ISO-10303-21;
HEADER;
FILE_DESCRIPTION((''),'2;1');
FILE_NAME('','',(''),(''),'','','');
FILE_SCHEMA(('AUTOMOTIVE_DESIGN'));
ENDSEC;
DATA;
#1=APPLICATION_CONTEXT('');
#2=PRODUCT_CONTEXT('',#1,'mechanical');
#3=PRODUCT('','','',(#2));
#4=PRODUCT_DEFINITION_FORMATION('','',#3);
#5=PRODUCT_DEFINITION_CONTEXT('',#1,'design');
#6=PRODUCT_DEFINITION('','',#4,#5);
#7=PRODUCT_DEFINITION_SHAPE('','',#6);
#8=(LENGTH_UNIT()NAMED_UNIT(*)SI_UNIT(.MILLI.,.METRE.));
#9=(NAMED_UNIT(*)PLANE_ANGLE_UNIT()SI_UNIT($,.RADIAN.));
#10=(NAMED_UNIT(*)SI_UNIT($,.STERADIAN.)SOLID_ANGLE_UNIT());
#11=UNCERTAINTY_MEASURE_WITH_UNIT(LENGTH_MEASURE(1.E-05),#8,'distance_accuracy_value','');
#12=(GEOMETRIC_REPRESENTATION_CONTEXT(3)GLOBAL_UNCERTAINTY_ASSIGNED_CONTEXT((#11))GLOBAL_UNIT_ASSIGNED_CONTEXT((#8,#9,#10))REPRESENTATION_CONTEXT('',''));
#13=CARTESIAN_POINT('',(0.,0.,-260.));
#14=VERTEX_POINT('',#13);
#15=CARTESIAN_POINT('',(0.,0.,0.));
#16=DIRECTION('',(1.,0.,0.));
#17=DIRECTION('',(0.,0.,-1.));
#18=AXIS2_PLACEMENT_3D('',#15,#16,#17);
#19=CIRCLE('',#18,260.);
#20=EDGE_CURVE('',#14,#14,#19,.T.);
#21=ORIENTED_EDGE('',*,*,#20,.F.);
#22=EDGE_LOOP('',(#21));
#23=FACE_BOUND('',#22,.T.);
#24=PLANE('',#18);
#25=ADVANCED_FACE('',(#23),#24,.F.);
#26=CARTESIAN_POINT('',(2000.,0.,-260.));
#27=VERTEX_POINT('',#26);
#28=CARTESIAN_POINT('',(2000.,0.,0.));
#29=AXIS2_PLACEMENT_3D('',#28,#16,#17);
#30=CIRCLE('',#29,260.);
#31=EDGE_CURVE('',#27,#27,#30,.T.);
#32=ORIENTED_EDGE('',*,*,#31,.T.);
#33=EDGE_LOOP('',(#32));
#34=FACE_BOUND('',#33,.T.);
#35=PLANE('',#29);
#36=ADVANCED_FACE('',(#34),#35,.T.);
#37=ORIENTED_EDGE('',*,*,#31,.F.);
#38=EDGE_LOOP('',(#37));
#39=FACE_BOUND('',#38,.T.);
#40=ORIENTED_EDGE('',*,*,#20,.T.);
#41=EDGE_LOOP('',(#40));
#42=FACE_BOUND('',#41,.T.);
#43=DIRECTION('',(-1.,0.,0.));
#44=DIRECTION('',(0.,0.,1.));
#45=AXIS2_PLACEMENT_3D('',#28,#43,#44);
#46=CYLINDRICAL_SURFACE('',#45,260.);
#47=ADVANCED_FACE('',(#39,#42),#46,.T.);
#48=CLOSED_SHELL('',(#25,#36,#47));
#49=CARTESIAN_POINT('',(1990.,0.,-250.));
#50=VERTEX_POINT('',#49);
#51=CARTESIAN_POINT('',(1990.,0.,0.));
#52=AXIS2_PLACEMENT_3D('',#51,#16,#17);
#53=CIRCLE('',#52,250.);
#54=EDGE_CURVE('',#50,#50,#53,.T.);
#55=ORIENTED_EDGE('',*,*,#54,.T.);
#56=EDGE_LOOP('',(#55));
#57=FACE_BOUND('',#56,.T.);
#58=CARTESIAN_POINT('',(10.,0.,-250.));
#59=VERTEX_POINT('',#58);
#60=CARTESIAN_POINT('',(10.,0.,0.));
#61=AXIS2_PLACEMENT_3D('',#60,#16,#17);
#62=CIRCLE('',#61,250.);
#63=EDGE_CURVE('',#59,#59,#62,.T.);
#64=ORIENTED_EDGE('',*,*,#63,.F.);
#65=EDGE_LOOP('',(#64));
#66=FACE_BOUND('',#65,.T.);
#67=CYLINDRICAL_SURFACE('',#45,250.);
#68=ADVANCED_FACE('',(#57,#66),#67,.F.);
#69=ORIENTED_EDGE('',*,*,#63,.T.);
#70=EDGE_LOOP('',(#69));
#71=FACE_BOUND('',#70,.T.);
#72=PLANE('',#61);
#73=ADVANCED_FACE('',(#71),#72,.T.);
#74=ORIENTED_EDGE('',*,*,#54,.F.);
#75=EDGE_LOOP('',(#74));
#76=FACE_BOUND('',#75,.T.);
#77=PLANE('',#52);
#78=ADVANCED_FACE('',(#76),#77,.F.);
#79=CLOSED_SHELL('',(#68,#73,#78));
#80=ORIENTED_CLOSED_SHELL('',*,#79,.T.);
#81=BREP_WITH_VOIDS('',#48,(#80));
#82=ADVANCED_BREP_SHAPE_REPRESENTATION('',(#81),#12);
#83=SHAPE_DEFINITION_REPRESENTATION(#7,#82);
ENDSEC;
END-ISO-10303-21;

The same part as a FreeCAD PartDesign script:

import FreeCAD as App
import Part
import Sketcher

V = App.Vector
Q = App.Units.Quantity

doc = App.newDocument("Part")
body = doc.addObject("PartDesign::Body", "Body")

sketch1 = body.newObject("Sketcher::SketchObject", "Sketch")
sketch1.AttachmentSupport = (doc.getObject("YZ_Plane"), [""])
sketch1.MapMode = "FlatFace"
sketch1.addGeometry([
    Part.Circle(V(0, 0, 0), V(0, 0, 1), 260),
    Part.Circle(V(0, 0, 0), V(0, 0, 1), 250),
], False)
sketch1.addConstraint([
    Sketcher.Constraint("Coincident", 0, 3, -1, 1),
    Sketcher.Constraint("Coincident", 1, 3, -1, 1),
    Sketcher.Constraint("Diameter", 0, Q("520 mm")),
    Sketcher.Constraint("Diameter", 1, Q("500 mm")),
])
pad1 = body.newObject("PartDesign::Pad", "Pad")
pad1.Profile = sketch1
pad1.Length = 2000

sketch2 = body.newObject("Sketcher::SketchObject", "Sketch001")
sketch2.AttachmentSupport = (doc.getObject("YZ_Plane"), [""])
sketch2.MapMode = "FlatFace"
sketch2.AttachmentOffset = App.Placement(V(0, 0, 1990), App.Rotation())
sketch2.addGeometry(Part.Circle(V(0, 0, 0), V(0, 0, 1), 250), False)
sketch2.addConstraint([
    Sketcher.Constraint("Coincident", 0, 3, -1, 1),
    Sketcher.Constraint("Diameter", 0, Q("500 mm")),
])
pad2 = body.newObject("PartDesign::Pad", "Pad001")
pad2.Profile = sketch2
pad2.Length = 10

sketch3 = body.newObject("Sketcher::SketchObject", "Sketch002")
sketch3.AttachmentSupport = (doc.getObject("YZ_Plane"), [""])
sketch3.MapMode = "FlatFace"
sketch3.addGeometry(Part.Circle(V(0, 0, 0), V(0, 0, 1), 250), False)
sketch3.addConstraint([
    Sketcher.Constraint("Coincident", 0, 3, -1, 1),
    Sketcher.Constraint("Diameter", 0, Q("500 mm")),
])
pad3 = body.newObject("PartDesign::Pad", "Pad002")
pad3.Profile = sketch3
pad3.Length = 10

doc.recompute()
